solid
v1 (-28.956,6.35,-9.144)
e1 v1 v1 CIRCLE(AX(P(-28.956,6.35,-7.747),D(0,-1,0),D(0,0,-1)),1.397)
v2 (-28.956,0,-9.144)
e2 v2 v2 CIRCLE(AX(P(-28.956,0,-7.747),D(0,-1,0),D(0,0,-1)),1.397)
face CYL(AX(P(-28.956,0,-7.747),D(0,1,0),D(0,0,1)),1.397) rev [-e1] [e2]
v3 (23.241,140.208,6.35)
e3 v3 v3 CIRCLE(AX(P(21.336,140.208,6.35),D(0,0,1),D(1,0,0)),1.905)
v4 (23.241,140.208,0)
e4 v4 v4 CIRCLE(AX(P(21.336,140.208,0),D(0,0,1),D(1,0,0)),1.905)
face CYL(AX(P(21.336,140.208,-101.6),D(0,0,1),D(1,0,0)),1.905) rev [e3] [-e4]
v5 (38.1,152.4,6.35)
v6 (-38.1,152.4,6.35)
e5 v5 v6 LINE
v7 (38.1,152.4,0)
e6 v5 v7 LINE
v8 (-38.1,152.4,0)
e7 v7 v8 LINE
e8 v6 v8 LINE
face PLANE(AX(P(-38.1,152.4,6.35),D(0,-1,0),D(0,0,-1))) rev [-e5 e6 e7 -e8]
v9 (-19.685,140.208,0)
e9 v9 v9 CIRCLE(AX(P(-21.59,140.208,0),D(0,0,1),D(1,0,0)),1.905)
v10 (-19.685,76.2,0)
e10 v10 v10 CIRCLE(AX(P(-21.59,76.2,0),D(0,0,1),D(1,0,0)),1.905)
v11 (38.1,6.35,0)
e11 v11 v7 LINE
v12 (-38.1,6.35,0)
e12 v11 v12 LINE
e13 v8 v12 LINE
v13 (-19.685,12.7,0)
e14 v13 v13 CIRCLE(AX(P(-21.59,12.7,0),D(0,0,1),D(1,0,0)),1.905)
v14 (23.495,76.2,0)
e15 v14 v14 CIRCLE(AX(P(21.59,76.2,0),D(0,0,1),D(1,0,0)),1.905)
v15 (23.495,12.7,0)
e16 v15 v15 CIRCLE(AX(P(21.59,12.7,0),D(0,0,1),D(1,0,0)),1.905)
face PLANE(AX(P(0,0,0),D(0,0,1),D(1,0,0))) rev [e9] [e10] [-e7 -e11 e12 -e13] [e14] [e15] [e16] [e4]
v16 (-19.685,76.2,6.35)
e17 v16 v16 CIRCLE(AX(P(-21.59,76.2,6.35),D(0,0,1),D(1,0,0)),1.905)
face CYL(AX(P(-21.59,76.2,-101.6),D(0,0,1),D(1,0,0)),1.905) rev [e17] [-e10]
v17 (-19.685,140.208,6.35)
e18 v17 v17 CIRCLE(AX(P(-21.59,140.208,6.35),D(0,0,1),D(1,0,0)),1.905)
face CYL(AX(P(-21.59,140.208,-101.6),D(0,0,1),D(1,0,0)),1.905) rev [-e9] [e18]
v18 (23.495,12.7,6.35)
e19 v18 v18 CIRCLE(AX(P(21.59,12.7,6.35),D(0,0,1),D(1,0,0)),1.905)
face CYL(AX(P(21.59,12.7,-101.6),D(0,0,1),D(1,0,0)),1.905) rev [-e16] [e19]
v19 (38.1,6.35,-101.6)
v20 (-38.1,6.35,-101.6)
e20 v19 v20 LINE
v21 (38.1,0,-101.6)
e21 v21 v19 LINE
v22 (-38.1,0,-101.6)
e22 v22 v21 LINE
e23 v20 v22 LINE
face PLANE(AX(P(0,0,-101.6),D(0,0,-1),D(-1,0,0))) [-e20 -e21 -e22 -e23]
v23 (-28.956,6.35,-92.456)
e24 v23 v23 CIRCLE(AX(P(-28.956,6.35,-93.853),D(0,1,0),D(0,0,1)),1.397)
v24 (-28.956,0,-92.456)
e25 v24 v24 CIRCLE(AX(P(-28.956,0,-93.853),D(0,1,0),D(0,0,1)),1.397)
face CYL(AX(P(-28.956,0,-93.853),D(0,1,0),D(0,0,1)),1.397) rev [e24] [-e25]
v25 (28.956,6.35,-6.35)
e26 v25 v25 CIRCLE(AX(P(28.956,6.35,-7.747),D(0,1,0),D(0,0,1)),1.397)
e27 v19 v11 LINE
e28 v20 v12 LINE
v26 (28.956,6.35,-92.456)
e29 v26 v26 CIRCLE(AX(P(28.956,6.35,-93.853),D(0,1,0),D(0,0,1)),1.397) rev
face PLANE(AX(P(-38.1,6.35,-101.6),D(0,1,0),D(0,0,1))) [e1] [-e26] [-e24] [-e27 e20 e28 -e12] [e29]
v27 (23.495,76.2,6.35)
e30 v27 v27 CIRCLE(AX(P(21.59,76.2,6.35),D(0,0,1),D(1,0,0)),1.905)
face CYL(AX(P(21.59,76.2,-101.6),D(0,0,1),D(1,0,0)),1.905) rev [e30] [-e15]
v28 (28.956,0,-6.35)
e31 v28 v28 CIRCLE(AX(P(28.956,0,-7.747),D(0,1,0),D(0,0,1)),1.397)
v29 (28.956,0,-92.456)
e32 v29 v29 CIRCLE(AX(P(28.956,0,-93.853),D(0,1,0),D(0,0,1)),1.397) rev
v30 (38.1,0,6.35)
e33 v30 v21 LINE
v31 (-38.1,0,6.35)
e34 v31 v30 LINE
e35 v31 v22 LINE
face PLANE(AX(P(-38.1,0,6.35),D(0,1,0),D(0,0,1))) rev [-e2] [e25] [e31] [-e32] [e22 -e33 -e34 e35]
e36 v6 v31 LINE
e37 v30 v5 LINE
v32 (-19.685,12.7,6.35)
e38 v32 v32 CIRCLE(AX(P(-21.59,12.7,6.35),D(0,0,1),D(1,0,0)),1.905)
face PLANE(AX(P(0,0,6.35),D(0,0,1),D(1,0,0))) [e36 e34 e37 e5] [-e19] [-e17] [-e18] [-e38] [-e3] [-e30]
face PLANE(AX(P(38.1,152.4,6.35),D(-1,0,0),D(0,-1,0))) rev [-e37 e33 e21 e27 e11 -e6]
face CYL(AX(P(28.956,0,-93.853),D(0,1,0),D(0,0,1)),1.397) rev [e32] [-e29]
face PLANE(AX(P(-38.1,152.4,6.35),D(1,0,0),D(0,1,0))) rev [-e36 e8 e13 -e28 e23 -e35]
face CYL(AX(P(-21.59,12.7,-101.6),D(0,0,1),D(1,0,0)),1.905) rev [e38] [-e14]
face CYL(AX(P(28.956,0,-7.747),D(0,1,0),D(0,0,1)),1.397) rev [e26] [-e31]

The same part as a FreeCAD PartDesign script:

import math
import FreeCAD as App
import Part
import Sketcher
from FreeCAD import Vector
Q = App.Units.Quantity

doc = App.newDocument("Part")
body = doc.addObject("PartDesign::Body", "Body")

# Sketch on XY plane
sketch1 = doc.addObject("Sketcher::SketchObject", "Sketch")
body.addObject(sketch1)
sketch1.AttachmentSupport = (doc.XY_Plane, [""])
sketch1.MapMode = "FlatFace"
sketch1.addGeometry(Part.LineSegment(Vector(-38, 152, 0), Vector(-38, 0, 0)), False)
sketch1.addGeometry(Part.LineSegment(Vector(-38, 0, 0), Vector(38, 0, 0)), False)
sketch1.addGeometry(Part.LineSegment(Vector(38, 0, 0), Vector(38, 152, 0)), False)
sketch1.addGeometry(Part.LineSegment(Vector(38, 152, 0), Vector(-38, 152, 0)), False)
sketch1.addConstraint(Sketcher.Constraint("Coincident", 0, 2, 1, 1))
sketch1.addConstraint(Sketcher.Constraint("Coincident", 1, 2, 2, 1))
sketch1.addConstraint(Sketcher.Constraint("Coincident", 2, 2, 3, 1))
sketch1.addConstraint(Sketcher.Constraint("Coincident", 3, 2, 0, 1))
sketch1.addConstraint(Sketcher.Constraint("Vertical", 0))
sketch1.addConstraint(Sketcher.Constraint("Horizontal", 1))
sketch1.addConstraint(Sketcher.Constraint("Vertical", 2))
sketch1.addConstraint(Sketcher.Constraint("Horizontal", 3))
sketch1.addConstraint(Sketcher.Constraint("Symmetric", 0, 2, 1, 2, -1, 1))
sketch1.addConstraint(Sketcher.Constraint("DistanceX", 1, 1, 1, 2, Q("3 in")))
sketch1.addConstraint(Sketcher.Constraint("DistanceY", 0, 2, 0, 1, Q("6 in")))
pad1 = doc.addObject("PartDesign::Pad", "Pad")
body.addObject(pad1)
pad1.Profile = sketch1
pad1.Length = Q("0.25 in")

# Sketch on XY plane
sketch2 = doc.addObject("Sketcher::SketchObject", "Sketch001")
body.addObject(sketch2)
sketch2.AttachmentSupport = (doc.XY_Plane, [""])
sketch2.MapMode = "FlatFace"
sketch2.addGeometry(Part.LineSegment(Vector(-38, 6, 0), Vector(-38, 0, 0)), False)
sketch2.addGeometry(Part.LineSegment(Vector(-38, 0, 0), Vector(38, 0, 0)), False)
sketch2.addGeometry(Part.LineSegment(Vector(38, 0, 0), Vector(38, 6, 0)), False)
sketch2.addGeometry(Part.LineSegment(Vector(38, 6, 0), Vector(-38, 6, 0)), False)
sketch2.addConstraint(Sketcher.Constraint("Coincident", 0, 2, 1, 1))
sketch2.addConstraint(Sketcher.Constraint("Coincident", 1, 2, 2, 1))
sketch2.addConstraint(Sketcher.Constraint("Coincident", 2, 2, 3, 1))
sketch2.addConstraint(Sketcher.Constraint("Coincident", 3, 2, 0, 1))
sketch2.addConstraint(Sketcher.Constraint("Vertical", 0))
sketch2.addConstraint(Sketcher.Constraint("Horizontal", 1))
sketch2.addConstraint(Sketcher.Constraint("Vertical", 2))
sketch2.addConstraint(Sketcher.Constraint("Horizontal", 3))
sketch2.addConstraint(Sketcher.Constraint("Symmetric", 0, 2, 1, 2, -1, 1))
sketch2.addConstraint(Sketcher.Constraint("DistanceX", 1, 1, 1, 2, Q("3 in")))
sketch2.addConstraint(Sketcher.Constraint("DistanceY", 0, 2, 0, 1, Q("0.25 in")))
pad2 = doc.addObject("PartDesign::Pad", "Pad001")
body.addObject(pad2)
pad2.Profile = sketch2
pad2.Length = Q("4 in")
pad2.Reversed = True

# Sketch on XY plane
sketch3 = doc.addObject("Sketcher::SketchObject", "Sketch002")
body.addObject(sketch3)
sketch3.AttachmentSupport = (doc.XY_Plane, [""])
sketch3.MapMode = "FlatFace"
sketch3.AttachmentOffset = App.Placement(Vector(0, 0, 0.25 * 25.4), App.Rotation())
sketch3.addGeometry(Part.Circle(Vector(21.6, 76.2, 0), Vector(0, 0, 1), 1.9), False)
sketch3.addGeometry(Part.Circle(Vector(21.6, 12.7, 0), Vector(0, 0, 1), 1.9), False)
sketch3.addGeometry(Part.Circle(Vector(-21.6, 12.7, 0), Vector(0, 0, 1), 1.9), False)
sketch3.addGeometry(Part.Circle(Vector(-21.6, 76.2, 0), Vector(0, 0, 1), 1.9), False)
sketch3.addGeometry(Part.Circle(Vector(21.3, 140.2, 0), Vector(0, 0, 1), 1.9), False)
sketch3.addGeometry(Part.Circle(Vector(-21.6, 140.2, 0), Vector(0, 0, 1), 1.9), False)
sketch3.addConstraint(Sketcher.Constraint("Equal", 0, 1))
sketch3.addConstraint(Sketcher.Constraint("Equal", 1, 2))
sketch3.addConstraint(Sketcher.Constraint("Equal", 2, 3))
sketch3.addConstraint(Sketcher.Constraint("Equal", 3, 4))
sketch3.addConstraint(Sketcher.Constraint("Equal", 4, 5))
sketch3.addConstraint(Sketcher.Constraint("Symmetric", 1, 3, 2, 3, -2))
sketch3.addConstraint(Sketcher.Constraint("Symmetric", 0, 3, 3, 3, -2))
sketch3.addConstraint(Sketcher.Constraint("Horizontal", 4, 3, 5, 3))
sketch3.addConstraint(Sketcher.Constraint("Vertical", 0, 3, 1, 3))
sketch3.addConstraint(Sketcher.Constraint("Vertical", 3, 3, 5, 3))
sketch3.addConstraint(Sketcher.Constraint("Diameter", 0, Q("0.15 in")))
sketch3.addConstraint(Sketcher.Constraint("DistanceY", -1, 1, 0, 3, Q("3 in")))
sketch3.addConstraint(Sketcher.Constraint("DistanceY", -1, 1, 1, 3, Q("0.5 in")))
sketch3.addConstraint(Sketcher.Constraint("DistanceX", 2, 3, 1, 3, Q("1.7 in")))
sketch3.addConstraint(Sketcher.Constraint("DistanceX", -1, 1, 4, 3, Q("0.84 in")))
sketch3.addConstraint(Sketcher.Constraint("DistanceY", -1, 1, 4, 3, Q("5.52 in")))
pocket1 = doc.addObject("PartDesign::Pocket", "Pocket")
body.addObject(pocket1)
pocket1.Profile = sketch3
pocket1.Type = "ThroughAll"

# Sketch on XZ plane
sketch4 = doc.addObject("Sketcher::SketchObject", "Sketch003")
body.addObject(sketch4)
sketch4.AttachmentSupport = (doc.XZ_Plane, [""])
sketch4.MapMode = "FlatFace"
sketch4.AttachmentOffset = App.Placement(Vector(0, 0, -0.25 * 25.4), App.Rotation())
sketch4.addGeometry(Part.ArcOfCircle(Part.Circle(Vector(-29, -93.9, 0), Vector(0, 0, 1), 1.4), math.radians(0), math.radians(90)), False)
sketch4.addGeometry(Part.ArcOfCircle(Part.Circle(Vector(-29, -93.9, 0), Vector(0, 0, 1), 1.4), math.radians(90), math.radians(360)), False)
sketch4.addGeometry(Part.ArcOfCircle(Part.Circle(Vector(29, -93.9, 0), Vector(0, 0, 1), 1.4), math.radians(180), math.radians(360)), False)
sketch4.addGeometry(Part.ArcOfCircle(Part.Circle(Vector(29, -93.9, 0), Vector(0, 0, 1), 1.4), math.radians(90), math.radians(180)), False)
sketch4.addGeometry(Part.ArcOfCircle(Part.Circle(Vector(29, -93.9, 0), Vector(0, 0, 1), 1.4), math.radians(0), math.radians(90)), False)
sketch4.addGeometry(Part.Circle(Vector(-29, -7.7, 0), Vector(0, 0, 1), 1.4), False)
sketch4.addGeometry(Part.Circle(Vector(29, -7.7, 0), Vector(0, 0, 1), 1.4), False)
sketch4.addConstraint(Sketcher.Constraint("Tangent", 0, 1, 1, 2))
sketch4.addConstraint(Sketcher.Constraint("Coincident", 1, 1, 0, 2))
sketch4.addConstraint(Sketcher.Constraint("Tangent", 2, 1, 3, 2))
sketch4.addConstraint(Sketcher.Constraint("Tangent", 3, 1, 4, 2))
sketch4.addConstraint(Sketcher.Constraint("Tangent", 4, 1, 2, 2))
sketch4.addConstraint(Sketcher.Constraint("Equal", 1, 2))
sketch4.addConstraint(Sketcher.Constraint("Equal", 4, 5))
sketch4.addConstraint(Sketcher.Constraint("Equal", 5, 6))
sketch4.addConstraint(Sketcher.Constraint("Symmetric", 0, 3, 2, 3, -2))
sketch4.addConstraint(Sketcher.Constraint("Symmetric", 5, 3, 6, 3, -2))
sketch4.addConstraint(Sketcher.Constraint("Horizontal", 4, 3, 0, 1))
sketch4.addConstraint(Sketcher.Constraint("Horizontal", 0, 1, 2, 1))
sketch4.addConstraint(Sketcher.Constraint("Horizontal", 2, 1, 4, 1))
sketch4.addConstraint(Sketcher.Constraint("Vertical", 1, 3, 5, 3))
sketch4.addConstraint(Sketcher.Constraint("Vertical", 5, 3, 1, 1))
sketch4.addConstraint(Sketcher.Constraint("Vertical", 6, 3, 3, 1))
sketch4.addConstraint(Sketcher.Constraint("Diameter", 5, Q("0.11 in")))
sketch4.addConstraint(Sketcher.Constraint("DistanceX", 0, 3, -1, 1, Q("1.14 in")))
sketch4.addConstraint(Sketcher.Constraint("DistanceY", 1, 1, -1, 1, Q("3.64 in")))
sketch4.addConstraint(Sketcher.Constraint("DistanceY", 1, 3, 5, 3, Q("3.39 in")))
pocket2 = doc.addObject("PartDesign::Pocket", "Pocket001")
body.addObject(pocket2)
pocket2.Profile = sketch4
pocket2.Type = "ThroughAll"
pocket2.Reversed = True

doc.recompute()
